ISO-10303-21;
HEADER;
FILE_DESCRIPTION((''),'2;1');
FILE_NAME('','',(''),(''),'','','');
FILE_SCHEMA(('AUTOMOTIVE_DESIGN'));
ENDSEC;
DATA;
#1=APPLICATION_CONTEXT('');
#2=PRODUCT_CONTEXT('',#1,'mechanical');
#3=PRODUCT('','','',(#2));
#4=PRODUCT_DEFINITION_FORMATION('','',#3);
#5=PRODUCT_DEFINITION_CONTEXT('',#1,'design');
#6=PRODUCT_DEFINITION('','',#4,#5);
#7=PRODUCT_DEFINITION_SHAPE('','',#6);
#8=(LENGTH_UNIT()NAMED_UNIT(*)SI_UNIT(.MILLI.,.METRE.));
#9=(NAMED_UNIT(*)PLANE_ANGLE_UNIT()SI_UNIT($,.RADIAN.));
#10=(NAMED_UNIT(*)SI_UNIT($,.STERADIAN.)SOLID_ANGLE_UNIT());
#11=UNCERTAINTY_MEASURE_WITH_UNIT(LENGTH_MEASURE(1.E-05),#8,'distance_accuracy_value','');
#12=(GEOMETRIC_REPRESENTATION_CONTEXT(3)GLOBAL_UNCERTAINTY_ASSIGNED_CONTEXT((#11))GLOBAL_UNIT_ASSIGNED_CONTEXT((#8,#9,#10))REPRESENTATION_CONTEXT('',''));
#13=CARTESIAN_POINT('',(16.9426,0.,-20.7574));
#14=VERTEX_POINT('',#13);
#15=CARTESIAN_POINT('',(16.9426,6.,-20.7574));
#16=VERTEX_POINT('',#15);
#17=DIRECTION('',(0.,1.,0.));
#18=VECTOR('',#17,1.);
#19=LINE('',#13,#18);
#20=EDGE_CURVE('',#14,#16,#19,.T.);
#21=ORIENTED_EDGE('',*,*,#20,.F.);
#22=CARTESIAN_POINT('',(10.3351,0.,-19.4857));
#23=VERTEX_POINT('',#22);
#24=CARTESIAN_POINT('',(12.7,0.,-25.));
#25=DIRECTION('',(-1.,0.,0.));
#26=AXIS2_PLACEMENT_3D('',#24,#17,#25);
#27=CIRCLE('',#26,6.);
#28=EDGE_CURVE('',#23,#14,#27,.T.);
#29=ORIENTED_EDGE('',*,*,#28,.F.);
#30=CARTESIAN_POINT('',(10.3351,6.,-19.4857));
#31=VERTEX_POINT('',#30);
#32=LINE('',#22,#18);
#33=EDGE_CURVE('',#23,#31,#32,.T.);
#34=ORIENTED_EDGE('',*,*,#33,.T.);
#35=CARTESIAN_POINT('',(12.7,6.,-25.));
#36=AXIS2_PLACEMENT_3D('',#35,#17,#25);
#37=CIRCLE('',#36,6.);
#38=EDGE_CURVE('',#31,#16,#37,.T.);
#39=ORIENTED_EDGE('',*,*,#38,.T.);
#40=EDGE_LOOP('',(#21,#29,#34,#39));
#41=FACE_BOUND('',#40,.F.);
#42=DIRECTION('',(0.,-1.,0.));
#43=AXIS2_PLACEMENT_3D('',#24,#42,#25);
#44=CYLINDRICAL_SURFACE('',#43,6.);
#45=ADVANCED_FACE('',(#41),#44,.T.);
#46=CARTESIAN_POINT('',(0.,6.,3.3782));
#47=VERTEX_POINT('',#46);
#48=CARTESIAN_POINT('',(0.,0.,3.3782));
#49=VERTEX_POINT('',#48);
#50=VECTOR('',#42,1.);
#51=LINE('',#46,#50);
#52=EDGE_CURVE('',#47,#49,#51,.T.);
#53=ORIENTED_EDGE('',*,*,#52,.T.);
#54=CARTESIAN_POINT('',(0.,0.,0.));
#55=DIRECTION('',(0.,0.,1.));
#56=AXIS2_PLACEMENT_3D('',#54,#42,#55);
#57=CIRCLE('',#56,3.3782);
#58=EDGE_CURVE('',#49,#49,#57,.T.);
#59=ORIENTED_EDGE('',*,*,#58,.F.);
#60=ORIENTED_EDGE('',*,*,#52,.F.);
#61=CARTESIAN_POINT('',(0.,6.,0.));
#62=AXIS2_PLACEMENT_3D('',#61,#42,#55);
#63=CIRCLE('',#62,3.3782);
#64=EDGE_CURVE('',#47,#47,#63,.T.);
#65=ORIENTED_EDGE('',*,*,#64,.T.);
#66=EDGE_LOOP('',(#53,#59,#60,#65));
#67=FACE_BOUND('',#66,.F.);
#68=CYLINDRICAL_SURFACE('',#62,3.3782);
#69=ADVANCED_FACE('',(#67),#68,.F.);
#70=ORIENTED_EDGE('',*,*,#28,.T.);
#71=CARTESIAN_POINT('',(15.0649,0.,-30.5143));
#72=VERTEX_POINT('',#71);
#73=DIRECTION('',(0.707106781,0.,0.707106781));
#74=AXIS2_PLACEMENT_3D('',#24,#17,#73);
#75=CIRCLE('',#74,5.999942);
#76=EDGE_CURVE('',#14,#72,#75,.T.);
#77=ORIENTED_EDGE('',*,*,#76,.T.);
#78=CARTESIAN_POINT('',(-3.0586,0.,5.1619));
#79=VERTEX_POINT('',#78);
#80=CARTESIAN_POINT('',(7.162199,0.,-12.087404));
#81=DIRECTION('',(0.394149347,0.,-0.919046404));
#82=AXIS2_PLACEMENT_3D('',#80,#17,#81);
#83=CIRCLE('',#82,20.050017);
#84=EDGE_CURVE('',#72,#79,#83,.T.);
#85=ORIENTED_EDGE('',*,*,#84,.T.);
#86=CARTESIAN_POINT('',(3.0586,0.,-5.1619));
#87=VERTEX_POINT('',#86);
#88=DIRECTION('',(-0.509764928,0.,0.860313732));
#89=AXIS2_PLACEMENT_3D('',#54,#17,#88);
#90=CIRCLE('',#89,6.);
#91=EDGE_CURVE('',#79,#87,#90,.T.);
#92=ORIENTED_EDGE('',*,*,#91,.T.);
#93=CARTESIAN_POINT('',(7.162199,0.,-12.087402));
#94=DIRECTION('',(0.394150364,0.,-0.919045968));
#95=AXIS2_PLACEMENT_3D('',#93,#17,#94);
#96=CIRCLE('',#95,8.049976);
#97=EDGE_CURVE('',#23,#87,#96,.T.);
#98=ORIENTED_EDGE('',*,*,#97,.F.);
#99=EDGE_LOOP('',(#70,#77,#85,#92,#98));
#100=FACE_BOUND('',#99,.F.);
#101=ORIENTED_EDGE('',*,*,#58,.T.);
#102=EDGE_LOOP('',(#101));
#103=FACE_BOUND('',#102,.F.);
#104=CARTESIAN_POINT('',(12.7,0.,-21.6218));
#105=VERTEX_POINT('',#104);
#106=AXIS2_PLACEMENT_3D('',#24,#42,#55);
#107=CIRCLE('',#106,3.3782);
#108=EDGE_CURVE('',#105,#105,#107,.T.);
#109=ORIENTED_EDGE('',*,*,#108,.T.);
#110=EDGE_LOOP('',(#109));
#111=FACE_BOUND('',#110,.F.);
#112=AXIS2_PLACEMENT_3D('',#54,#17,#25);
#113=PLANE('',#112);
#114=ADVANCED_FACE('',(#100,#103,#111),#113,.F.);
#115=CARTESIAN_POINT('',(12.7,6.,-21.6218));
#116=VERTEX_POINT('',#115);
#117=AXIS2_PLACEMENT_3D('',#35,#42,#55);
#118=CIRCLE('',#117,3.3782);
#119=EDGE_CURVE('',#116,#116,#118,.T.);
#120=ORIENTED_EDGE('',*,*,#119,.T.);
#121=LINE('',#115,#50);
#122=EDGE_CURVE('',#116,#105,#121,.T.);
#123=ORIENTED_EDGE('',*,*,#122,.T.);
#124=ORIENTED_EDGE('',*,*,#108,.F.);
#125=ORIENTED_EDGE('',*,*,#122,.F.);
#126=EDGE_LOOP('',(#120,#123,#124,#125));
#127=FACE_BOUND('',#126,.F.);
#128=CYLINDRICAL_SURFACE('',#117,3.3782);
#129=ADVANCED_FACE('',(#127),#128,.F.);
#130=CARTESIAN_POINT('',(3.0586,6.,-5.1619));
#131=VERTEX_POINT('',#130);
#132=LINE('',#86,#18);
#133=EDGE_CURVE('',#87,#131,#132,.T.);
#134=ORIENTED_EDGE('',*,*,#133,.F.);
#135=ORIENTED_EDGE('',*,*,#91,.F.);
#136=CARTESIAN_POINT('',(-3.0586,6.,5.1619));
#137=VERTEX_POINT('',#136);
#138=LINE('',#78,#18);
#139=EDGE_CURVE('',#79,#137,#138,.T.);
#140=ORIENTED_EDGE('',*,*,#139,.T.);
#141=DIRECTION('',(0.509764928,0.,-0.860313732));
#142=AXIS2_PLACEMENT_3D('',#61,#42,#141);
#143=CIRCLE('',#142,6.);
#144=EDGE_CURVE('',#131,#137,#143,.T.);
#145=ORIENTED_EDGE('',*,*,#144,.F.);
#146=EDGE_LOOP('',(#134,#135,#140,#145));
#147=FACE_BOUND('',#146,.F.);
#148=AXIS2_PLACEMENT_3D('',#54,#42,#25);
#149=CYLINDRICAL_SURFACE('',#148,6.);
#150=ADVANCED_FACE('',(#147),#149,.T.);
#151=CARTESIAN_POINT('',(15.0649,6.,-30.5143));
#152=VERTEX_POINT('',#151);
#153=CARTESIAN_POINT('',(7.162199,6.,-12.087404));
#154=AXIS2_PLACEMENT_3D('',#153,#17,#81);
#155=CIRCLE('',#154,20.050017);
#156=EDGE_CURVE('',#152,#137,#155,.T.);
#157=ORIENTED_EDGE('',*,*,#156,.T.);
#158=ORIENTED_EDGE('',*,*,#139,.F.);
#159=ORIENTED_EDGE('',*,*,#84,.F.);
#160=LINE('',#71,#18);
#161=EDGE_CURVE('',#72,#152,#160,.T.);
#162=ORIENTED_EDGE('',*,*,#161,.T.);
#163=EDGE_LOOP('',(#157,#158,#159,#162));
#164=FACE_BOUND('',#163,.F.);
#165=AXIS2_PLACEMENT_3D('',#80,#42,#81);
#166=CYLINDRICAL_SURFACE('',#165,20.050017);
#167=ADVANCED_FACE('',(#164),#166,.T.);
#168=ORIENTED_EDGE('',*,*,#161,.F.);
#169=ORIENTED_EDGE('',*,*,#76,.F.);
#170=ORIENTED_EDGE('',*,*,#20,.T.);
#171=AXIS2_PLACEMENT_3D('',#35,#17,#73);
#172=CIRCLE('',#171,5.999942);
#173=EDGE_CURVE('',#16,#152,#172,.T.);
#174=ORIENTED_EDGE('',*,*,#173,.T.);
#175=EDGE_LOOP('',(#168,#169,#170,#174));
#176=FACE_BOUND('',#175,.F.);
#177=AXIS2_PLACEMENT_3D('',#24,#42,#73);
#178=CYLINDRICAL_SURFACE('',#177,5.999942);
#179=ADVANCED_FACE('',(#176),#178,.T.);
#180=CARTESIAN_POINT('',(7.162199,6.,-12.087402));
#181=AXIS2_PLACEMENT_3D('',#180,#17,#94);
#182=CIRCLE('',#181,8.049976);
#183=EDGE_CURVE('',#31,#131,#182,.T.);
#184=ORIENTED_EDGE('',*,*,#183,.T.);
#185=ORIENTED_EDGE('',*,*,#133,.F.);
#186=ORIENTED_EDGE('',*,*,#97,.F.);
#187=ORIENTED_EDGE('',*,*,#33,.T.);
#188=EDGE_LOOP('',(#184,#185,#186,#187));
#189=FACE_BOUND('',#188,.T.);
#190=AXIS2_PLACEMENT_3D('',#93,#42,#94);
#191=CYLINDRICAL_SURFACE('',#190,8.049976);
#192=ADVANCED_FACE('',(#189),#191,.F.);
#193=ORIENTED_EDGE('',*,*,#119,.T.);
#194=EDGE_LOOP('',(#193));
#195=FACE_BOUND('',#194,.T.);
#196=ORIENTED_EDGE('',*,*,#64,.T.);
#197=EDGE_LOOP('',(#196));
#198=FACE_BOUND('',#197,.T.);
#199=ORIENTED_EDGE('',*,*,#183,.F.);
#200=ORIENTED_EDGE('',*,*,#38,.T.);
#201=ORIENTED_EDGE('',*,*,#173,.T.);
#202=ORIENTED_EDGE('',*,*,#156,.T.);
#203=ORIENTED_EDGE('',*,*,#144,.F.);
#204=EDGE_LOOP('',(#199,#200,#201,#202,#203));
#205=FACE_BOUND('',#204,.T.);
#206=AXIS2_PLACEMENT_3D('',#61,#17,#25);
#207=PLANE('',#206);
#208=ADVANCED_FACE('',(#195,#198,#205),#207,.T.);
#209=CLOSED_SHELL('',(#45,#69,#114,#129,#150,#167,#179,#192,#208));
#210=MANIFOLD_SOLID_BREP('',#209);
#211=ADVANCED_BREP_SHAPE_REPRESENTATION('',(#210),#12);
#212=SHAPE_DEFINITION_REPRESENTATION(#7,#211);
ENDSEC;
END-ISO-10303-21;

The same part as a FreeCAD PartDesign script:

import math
import FreeCAD as App
import Part
import Sketcher

V = App.Vector
Q = App.Units.Quantity

doc = App.newDocument("Part")
body = doc.addObject("PartDesign::Body", "Body")

# Sketch on XZ plane
sketch1 = body.newObject("Sketcher::SketchObject", "Sketch")
sketch1.AttachmentSupport = (doc.getObject("XZ_Plane"), [""])
sketch1.MapMode = "FlatFace"
sketch1.addGeometry(Part.ArcOfCircle(Part.Circle(V(7, -12, 0), V(0, 0, 1), 8), math.radians(121), math.radians(293)), False)
sketch1.addGeometry(Part.ArcOfCircle(Part.Circle(V(13, -25, 0), V(0, 0, 1), 6), math.radians(-67), math.radians(113)), False)
sketch1.addGeometry(Part.ArcOfCircle(Part.Circle(V(7, -12, 0), V(0, 0, 1), 20), math.radians(121), math.radians(293)), False)
sketch1.addGeometry(Part.ArcOfCircle(Part.Circle(V(0, 0, 0), V(0, 0, 1), 6), math.radians(-59), math.radians(121)), False)
sketch1.addConstraint(Sketcher.Constraint("Tangent", 0, 2, 1, 2))
sketch1.addConstraint(Sketcher.Constraint("Tangent", 1, 1, 2, 2))
sketch1.addConstraint(Sketcher.Constraint("Tangent", 2, 1, 3, 2))
sketch1.addConstraint(Sketcher.Constraint("Tangent", 3, 1, 0, 1))
sketch1.addConstraint(Sketcher.Constraint("Coincident", 3, 3, -1, 1))
sketch1.addConstraint(Sketcher.Constraint("Coincident", 2, 3, 0, 3))
sketch1.addConstraint(Sketcher.Constraint("Radius", 1, Q("6 mm")))
sketch1.addConstraint(Sketcher.Constraint("Radius", 0, Q("8.05 mm")))
sketch1.addConstraint(Sketcher.Constraint("DistanceY", 1, 3, -1, 1, Q("25 mm")))
sketch1.addConstraint(Sketcher.Constraint("DistanceX", -1, 1, 1, 3, Q("12.7 mm")))
pad1 = body.newObject("PartDesign::Pad", "Pad")
pad1.Profile = sketch1
pad1.Length = 6
pad1.Reversed = True

# Sketch on XZ plane
sketch2 = body.newObject("Sketcher::SketchObject", "Sketch001")
sketch2.AttachmentSupport = (doc.getObject("XZ_Plane"), [""])
sketch2.MapMode = "FlatFace"
sketch2.AttachmentOffset = App.Placement(V(0, 0, -6), App.Rotation())
sketch2.addGeometry(Part.Circle(V(0, 0, 0), V(0, 0, 1), 3.4), False)
sketch2.addGeometry(Part.Circle(V(12.7, -25, 0), V(0, 0, 1), 3.4), False)
sketch2.addConstraint(Sketcher.Constraint("Coincident", 0, 3, -1, 1))
sketch2.addConstraint(Sketcher.Constraint("Equal", 0, 1))
sketch2.addConstraint(Sketcher.Constraint("DistanceY", 1, 3, -1, 1, Q("25 mm")))
sketch2.addConstraint(Sketcher.Constraint("Diameter", 0, Q("6.7564 mm")))
sketch2.addConstraint(Sketcher.Constraint("DistanceX", -1, 1, 1, 3, Q("12.7 mm")))
doc.recompute()
hole = body.newObject("PartDesign::Hole", "Hole")
hole.Profile = sketch2
hole.ThreadType = "None"
hole.Diameter = 6.7564
hole.DepthType = "Dimension"
hole.Depth = 12.7
hole.DrillPoint = "Angled"
hole.DrillPointAngle = 118
hole.Reversed = True

doc.recompute()
